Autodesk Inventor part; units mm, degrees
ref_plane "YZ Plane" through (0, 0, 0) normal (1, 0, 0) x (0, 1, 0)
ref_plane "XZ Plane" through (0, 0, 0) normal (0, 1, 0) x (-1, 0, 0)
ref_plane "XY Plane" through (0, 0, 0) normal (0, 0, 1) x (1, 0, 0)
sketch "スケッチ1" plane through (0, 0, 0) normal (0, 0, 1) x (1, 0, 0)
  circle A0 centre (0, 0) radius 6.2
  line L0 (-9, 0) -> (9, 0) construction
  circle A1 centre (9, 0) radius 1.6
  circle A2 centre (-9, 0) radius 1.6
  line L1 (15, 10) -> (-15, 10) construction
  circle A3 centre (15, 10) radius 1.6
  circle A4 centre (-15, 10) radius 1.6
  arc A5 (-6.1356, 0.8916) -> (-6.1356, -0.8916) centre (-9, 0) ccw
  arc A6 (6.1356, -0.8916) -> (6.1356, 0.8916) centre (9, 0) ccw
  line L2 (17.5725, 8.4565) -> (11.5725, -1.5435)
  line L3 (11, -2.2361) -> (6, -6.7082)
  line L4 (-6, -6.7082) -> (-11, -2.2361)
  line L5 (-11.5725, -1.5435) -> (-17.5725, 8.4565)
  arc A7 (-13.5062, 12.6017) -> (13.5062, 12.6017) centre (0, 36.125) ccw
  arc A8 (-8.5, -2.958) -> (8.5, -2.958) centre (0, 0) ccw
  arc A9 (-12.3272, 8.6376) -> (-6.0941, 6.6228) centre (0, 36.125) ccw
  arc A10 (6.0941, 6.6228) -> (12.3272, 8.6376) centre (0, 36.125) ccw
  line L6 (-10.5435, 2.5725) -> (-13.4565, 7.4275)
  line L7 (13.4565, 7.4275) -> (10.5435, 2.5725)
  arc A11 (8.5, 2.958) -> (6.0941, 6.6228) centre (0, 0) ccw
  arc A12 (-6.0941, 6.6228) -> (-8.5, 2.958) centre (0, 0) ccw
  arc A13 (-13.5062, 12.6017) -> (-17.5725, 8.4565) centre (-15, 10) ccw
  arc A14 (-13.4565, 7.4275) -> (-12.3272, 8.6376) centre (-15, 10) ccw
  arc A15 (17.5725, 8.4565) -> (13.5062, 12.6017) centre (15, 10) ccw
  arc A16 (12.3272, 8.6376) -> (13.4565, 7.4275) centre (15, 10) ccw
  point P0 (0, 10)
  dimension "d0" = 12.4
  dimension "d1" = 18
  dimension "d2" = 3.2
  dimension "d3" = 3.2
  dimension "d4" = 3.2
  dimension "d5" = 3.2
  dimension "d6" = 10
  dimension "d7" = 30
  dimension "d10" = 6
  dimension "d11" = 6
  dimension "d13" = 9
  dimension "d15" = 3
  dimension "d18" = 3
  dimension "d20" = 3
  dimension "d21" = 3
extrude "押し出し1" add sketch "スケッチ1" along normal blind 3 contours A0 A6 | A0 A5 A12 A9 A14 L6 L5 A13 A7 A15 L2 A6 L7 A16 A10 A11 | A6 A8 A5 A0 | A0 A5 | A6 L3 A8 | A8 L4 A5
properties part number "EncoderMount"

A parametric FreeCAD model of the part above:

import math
import FreeCAD as App
import Part
import Sketcher
Q = App.Units.Quantity

doc = App.newDocument("Part")
params = doc.addObject("Spreadsheet::Sheet", "Params")
for row, (alias, value) in enumerate([
    ("sketch1_radius", "3 mm"),
    ("sketch1_radius2", "9 mm"),
    ("sketch1_diameter", "12.4 mm"),
    ("sketch1_diameter2", "3.2 mm"),
    ("pad1_length", "3 mm"),
], start=1):
    params.set(f"A{row}", alias)
    params.set(f"B{row}", "=" + value)
    params.setAlias(f"B{row}", alias)

body = doc.addObject("PartDesign::Body", "Body")

sketch1 = body.newObject("Sketcher::SketchObject", "Sketch")
sketch1.AttachmentSupport = (doc.getObject("XY_Plane"), [""])
sketch1.MapMode = "FlatFace"
sketch1.addGeometry([
    Part.ArcOfCircle(Part.Circle(App.Vector(9, 0, 0), App.Vector(0, 0, 1), 3), math.radians(-48.19), math.radians(-30.96)),
    Part.LineSegment(App.Vector(11.6, -1.5, 0), App.Vector(17.6, 8.5, 0)),
    Part.ArcOfCircle(Part.Circle(App.Vector(15, 10, 0), App.Vector(0, 0, 1), 3), math.radians(-31), math.radians(120)),
    Part.ArcOfCircle(Part.Circle(App.Vector(0, 36.1, 0), App.Vector(0, 0, 1), 27.1), math.radians(-120), math.radians(-60)),
    Part.ArcOfCircle(Part.Circle(App.Vector(-15, 10, 0), App.Vector(0, 0, 1), 3), math.radians(60), math.radians(211)),
    Part.LineSegment(App.Vector(-17.6, 8.5, 0), App.Vector(-11.6, -1.5, 0)),
    Part.ArcOfCircle(Part.Circle(App.Vector(-9, 0, 0), App.Vector(0, 0, 1), 3), math.radians(-149.04), math.radians(-131.81)),
    Part.LineSegment(App.Vector(-11, -2.2, 0), App.Vector(-6, -6.7, 0)),
    Part.ArcOfCircle(Part.Circle(App.Vector(0, 0, 0), App.Vector(0, 0, 1), 9), math.radians(-132), math.radians(-48)),
    Part.LineSegment(App.Vector(6, -6.7, 0), App.Vector(11, -2.2, 0)),
    Part.Circle(App.Vector(0, 0, 0), App.Vector(0, 0, 1), 6.2),
    Part.ArcOfCircle(Part.Circle(App.Vector(9, 0, 0), App.Vector(0, 0, 1), 3), math.radians(59), math.radians(100)),
    Part.ArcOfCircle(Part.Circle(App.Vector(0, 0, 0), App.Vector(0, 0, 1), 9), math.radians(19), math.radians(47)),
    Part.ArcOfCircle(Part.Circle(App.Vector(0, 36.1, 0), App.Vector(0, 0, 1), 30.1), math.radians(-78.33), math.radians(-65.84)),
    Part.ArcOfCircle(Part.Circle(App.Vector(15, 10, 0), App.Vector(0, 0, 1), 3), math.radians(-153), math.radians(-121)),
    Part.LineSegment(App.Vector(13.5, 7.4, 0), App.Vector(10.5, 2.6, 0)),
    Part.Circle(App.Vector(9, 0, 0), App.Vector(0, 0, 1), 1.6),
    Part.ArcOfCircle(Part.Circle(App.Vector(0, 0, 0), App.Vector(0, 0, 1), 9), math.radians(133), math.radians(161)),
    Part.ArcOfCircle(Part.Circle(App.Vector(-9, 0, 0), App.Vector(0, 0, 1), 3), math.radians(80), math.radians(121)),
    Part.LineSegment(App.Vector(-10.5, 2.6, 0), App.Vector(-13.5, 7.4, 0)),
    Part.ArcOfCircle(Part.Circle(App.Vector(-15, 10, 0), App.Vector(0, 0, 1), 3), math.radians(-59), math.radians(-27)),
    Part.ArcOfCircle(Part.Circle(App.Vector(0, 36.1, 0), App.Vector(0, 0, 1), 30.1), math.radians(-114.15), math.radians(-101.67)),
    Part.Circle(App.Vector(-15, 10, 0), App.Vector(0, 0, 1), 1.6),
    Part.Circle(App.Vector(15, 10, 0), App.Vector(0, 0, 1), 1.6),
    Part.Circle(App.Vector(-9, 0, 0), App.Vector(0, 0, 1), 1.6),
], False)
sketch1.addConstraint([
    Sketcher.Constraint("Tangent", 0, 2, 1, 1),
    Sketcher.Constraint("Tangent", 1, 2, 2, 1),
    Sketcher.Constraint("Tangent", 2, 2, 3, 2),
    Sketcher.Constraint("Tangent", 3, 1, 4, 1),
    Sketcher.Constraint("Tangent", 4, 2, 5, 1),
    Sketcher.Constraint("Tangent", 5, 2, 6, 1),
    Sketcher.Constraint("Tangent", 6, 2, 7, 1),
    Sketcher.Constraint("Tangent", 7, 2, 8, 1),
    Sketcher.Constraint("Tangent", 8, 2, 9, 1),
    Sketcher.Constraint("Tangent", 9, 2, 0, 1),
    Sketcher.Constraint("Coincident", 11, 2, 12, 1),
    Sketcher.Constraint("Coincident", 12, 2, 13, 1),
    Sketcher.Constraint("Coincident", 13, 2, 14, 1),
    Sketcher.Constraint("Coincident", 14, 2, 15, 1),
    Sketcher.Constraint("Coincident", 15, 2, 11, 1),
    Sketcher.Constraint("Coincident", 17, 2, 18, 1),
    Sketcher.Constraint("Coincident", 18, 2, 19, 1),
    Sketcher.Constraint("Coincident", 19, 2, 20, 1),
    Sketcher.Constraint("Coincident", 20, 2, 21, 1),
    Sketcher.Constraint("Coincident", 21, 2, 17, 1),
    Sketcher.Constraint("Coincident", 8, 3, -1, 1),
    Sketcher.Constraint("Coincident", 10, 3, -1, 1),
    Sketcher.Constraint("Coincident", 12, 3, -1, 1),
    Sketcher.Constraint("Coincident", 17, 3, -1, 1),
    Sketcher.Constraint("Coincident", 11, 3, 0, 3),
    Sketcher.Constraint("Coincident", 14, 3, 2, 3),
    Sketcher.Constraint("Coincident", 16, 3, 0, 3),
    Sketcher.Constraint("Coincident", 18, 3, 6, 3),
    Sketcher.Constraint("Coincident", 20, 3, 4, 3),
    Sketcher.Constraint("Coincident", 22, 3, 4, 3),
    Sketcher.Constraint("Coincident", 23, 3, 2, 3),
    Sketcher.Constraint("Coincident", 24, 3, 6, 3),
    Sketcher.Constraint("Equal", 0, 2),
    Sketcher.Constraint("Equal", 2, 4),
    Sketcher.Constraint("Equal", 4, 6),
    Sketcher.Constraint("Equal", 6, 11),
    Sketcher.Constraint("Equal", 8, 12),
    Sketcher.Constraint("Equal", 11, 14),
    Sketcher.Constraint("Equal", 12, 17),
    Sketcher.Constraint("Equal", 14, 18),
    Sketcher.Constraint("Equal", 18, 20),
    Sketcher.Constraint("Equal", 16, 22),
    Sketcher.Constraint("Equal", 22, 23),
    Sketcher.Constraint("Equal", 23, 24),
    Sketcher.Constraint("Symmetric", 0, 3, 6, 3, -1, 1),
    Sketcher.Constraint("Symmetric", 2, 3, 4, 3, -2),
    Sketcher.Constraint("Symmetric", 15, 2, 18, 2, -2),
    Sketcher.Constraint("Parallel", 1, 15),
    Sketcher.Constraint("Parallel", 5, 19),
    Sketcher.Constraint("Horizontal", 13, 2, 20, 2),
    Sketcher.Constraint("Horizontal", 12, 2, 21, 2),
    Sketcher.Constraint("Vertical", 13, 3, 21, 3),
    Sketcher.Constraint("Radius", 0, Q("3 mm")),
    Sketcher.Constraint("Radius", 8, Q("9 mm")),
    Sketcher.Constraint("Diameter", 10, Q("12.4 mm")),
    Sketcher.Constraint("Diameter", 16, Q("3.2 mm")),
    Sketcher.Constraint("DistanceX", -1, 1, 0, 3, Q("9 mm")),
    Sketcher.Constraint("DistanceY", -1, 1, 2, 3, Q("10 mm")),
    Sketcher.Constraint("DistanceX", 0, 3, 2, 3, Q("6 mm")),
    Sketcher.Constraint("Radius", 3, Q("27.125 mm")),
    Sketcher.Constraint("Radius", 13, Q("30.1239 mm")),
    Sketcher.Constraint("Radius", 21, Q("30.1262 mm")),
    Sketcher.Constraint("DistanceY", 14, 2, 13, 2, Q("1.21 mm")),
    Sketcher.Constraint("DistanceY", -1, 1, 21, 3, Q("36.126 mm")),
])
sketch1.setExpression("Constraints[52]", "Params.sketch1_radius")
sketch1.setExpression("Constraints[53]", "Params.sketch1_radius2")
sketch1.setExpression("Constraints[54]", "Params.sketch1_diameter")
sketch1.setExpression("Constraints[55]", "Params.sketch1_diameter2")
pad1 = body.newObject("PartDesign::Pad", "Pad")
pad1.Profile = sketch1
pad1.setExpression("Length", "Params.pad1_length")

doc.recompute()
